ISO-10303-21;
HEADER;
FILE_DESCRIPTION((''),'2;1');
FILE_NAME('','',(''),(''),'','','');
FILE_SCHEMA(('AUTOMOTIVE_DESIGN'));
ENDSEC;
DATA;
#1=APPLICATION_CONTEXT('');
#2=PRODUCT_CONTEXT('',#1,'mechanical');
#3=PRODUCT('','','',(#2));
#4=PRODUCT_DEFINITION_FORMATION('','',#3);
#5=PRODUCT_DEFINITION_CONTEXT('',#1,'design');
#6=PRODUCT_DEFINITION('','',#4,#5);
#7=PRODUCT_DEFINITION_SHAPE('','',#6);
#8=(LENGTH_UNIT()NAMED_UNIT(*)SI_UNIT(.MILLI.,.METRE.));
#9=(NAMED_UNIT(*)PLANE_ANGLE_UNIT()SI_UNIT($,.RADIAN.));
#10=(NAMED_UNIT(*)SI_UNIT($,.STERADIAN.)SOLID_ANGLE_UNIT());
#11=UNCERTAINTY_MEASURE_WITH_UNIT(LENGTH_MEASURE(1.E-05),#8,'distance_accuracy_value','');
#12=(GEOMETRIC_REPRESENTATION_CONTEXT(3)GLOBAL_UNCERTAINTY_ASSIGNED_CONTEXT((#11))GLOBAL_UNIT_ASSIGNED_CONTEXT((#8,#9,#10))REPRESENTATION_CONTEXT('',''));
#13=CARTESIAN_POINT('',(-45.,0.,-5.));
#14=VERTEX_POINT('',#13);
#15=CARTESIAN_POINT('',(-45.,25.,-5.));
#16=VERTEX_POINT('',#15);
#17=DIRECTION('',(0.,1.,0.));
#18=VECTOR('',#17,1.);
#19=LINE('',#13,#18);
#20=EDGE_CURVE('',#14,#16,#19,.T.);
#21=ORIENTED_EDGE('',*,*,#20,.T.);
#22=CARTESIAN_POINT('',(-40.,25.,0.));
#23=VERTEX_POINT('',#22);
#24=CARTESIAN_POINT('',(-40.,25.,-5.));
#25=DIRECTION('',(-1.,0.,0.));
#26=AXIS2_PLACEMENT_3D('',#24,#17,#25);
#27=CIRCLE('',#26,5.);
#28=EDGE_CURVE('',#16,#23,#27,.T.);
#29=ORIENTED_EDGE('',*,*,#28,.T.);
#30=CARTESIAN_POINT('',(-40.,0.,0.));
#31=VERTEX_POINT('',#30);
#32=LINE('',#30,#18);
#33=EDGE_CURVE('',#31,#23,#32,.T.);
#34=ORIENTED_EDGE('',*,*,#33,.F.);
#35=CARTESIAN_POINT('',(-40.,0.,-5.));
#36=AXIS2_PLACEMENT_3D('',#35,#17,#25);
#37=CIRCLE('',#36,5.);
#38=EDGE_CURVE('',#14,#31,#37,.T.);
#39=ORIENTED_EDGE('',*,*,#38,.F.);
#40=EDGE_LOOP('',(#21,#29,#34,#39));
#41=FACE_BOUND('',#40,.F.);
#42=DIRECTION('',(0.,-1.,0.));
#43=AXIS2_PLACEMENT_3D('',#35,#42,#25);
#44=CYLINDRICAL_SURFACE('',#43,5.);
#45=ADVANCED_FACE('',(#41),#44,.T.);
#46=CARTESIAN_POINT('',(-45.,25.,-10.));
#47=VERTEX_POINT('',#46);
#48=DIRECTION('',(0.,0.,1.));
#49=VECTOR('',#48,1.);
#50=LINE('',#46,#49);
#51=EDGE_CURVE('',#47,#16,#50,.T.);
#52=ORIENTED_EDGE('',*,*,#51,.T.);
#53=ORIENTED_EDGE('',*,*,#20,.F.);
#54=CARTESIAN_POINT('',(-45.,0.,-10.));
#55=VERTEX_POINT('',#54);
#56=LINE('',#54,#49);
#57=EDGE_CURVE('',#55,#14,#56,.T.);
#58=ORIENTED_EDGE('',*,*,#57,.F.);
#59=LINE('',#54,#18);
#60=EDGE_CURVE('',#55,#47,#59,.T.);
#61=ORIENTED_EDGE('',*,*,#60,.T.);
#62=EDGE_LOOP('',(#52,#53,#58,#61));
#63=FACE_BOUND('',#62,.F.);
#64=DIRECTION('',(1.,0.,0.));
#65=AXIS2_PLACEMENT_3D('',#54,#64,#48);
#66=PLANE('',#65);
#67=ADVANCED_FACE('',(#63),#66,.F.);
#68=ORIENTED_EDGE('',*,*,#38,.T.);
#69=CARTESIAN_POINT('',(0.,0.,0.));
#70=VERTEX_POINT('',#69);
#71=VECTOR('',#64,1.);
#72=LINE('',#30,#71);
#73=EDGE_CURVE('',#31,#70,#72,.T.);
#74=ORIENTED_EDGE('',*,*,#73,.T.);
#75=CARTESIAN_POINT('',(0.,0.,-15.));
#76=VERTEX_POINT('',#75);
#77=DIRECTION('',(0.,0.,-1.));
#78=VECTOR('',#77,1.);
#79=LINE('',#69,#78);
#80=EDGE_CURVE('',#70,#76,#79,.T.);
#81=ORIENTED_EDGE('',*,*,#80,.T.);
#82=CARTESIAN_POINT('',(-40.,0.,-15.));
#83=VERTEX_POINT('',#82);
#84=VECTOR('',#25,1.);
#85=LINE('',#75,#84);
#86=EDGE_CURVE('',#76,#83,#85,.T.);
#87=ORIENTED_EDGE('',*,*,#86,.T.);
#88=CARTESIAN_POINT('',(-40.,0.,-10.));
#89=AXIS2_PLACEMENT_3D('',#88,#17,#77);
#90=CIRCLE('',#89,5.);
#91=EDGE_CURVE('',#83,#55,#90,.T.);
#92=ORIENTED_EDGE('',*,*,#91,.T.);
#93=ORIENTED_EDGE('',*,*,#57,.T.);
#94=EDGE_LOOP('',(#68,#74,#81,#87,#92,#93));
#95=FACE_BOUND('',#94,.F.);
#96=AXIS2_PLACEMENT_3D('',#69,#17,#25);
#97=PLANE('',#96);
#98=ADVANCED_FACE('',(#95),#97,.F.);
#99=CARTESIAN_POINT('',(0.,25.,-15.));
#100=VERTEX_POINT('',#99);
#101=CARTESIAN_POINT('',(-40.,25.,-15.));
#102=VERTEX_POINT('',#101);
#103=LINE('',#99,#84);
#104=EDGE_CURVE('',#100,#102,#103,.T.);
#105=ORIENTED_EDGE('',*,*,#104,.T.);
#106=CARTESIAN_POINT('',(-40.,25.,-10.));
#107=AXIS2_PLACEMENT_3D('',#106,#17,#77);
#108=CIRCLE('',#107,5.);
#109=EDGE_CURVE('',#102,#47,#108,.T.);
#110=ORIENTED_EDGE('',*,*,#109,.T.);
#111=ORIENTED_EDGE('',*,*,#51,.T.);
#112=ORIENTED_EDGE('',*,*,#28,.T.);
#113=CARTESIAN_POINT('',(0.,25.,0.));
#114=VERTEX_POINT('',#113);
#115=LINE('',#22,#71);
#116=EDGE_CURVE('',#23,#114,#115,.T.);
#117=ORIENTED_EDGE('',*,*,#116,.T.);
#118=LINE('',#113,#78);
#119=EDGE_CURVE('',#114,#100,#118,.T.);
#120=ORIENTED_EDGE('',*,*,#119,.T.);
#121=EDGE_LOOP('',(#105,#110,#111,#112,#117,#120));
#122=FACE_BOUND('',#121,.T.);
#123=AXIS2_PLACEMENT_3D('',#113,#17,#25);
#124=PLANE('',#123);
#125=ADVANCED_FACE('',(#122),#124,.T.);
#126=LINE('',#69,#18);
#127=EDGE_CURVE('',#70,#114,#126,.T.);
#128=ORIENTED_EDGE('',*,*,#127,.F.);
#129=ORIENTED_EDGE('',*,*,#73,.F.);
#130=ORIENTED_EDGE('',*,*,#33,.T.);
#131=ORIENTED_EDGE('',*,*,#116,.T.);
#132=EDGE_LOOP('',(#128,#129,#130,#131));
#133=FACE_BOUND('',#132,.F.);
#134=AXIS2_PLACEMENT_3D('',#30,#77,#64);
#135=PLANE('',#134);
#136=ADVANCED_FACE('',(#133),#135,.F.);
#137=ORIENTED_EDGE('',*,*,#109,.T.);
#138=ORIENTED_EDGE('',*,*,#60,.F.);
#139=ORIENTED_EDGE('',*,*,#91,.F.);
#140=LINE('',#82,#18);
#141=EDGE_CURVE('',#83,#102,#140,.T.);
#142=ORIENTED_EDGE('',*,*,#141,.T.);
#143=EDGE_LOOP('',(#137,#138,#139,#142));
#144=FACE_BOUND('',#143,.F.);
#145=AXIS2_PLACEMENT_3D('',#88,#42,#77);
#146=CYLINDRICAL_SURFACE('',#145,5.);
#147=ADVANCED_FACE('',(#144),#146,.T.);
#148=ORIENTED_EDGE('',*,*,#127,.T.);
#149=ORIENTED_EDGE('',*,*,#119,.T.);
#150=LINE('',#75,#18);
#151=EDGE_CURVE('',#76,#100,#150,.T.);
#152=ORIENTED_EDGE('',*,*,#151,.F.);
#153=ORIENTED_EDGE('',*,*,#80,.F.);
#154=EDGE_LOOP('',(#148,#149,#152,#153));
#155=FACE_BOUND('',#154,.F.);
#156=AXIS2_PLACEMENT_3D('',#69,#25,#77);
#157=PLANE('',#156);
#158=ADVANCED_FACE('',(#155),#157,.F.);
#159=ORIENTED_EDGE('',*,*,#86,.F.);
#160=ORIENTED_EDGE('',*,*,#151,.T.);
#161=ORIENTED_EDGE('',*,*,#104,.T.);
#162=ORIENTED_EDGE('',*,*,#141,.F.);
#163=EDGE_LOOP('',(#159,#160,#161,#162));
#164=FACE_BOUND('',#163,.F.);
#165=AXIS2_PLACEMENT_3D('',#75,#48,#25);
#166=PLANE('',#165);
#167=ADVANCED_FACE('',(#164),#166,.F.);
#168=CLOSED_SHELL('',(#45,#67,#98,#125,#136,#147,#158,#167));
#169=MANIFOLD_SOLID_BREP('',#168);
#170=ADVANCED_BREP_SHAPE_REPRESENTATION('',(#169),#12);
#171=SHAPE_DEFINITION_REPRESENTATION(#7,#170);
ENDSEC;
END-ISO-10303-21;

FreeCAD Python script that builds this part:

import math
import FreeCAD as App
import Part
import Sketcher
from FreeCAD import Vector

doc = App.newDocument("Part")
params = doc.addObject("Spreadsheet::Sheet", "Params")
for row, (alias, value) in enumerate([
    ("sketch1_radius", "5 mm"),
    ("sketch1_height", "15 mm"),
    ("pad1_length", "25 mm"),
], start=1):
    params.set(f"A{row}", alias)
    params.set(f"B{row}", "=" + value)
    params.setAlias(f"B{row}", alias)

body = doc.addObject("PartDesign::Body", "Body")

sketch1 = doc.addObject("Sketcher::SketchObject", "Sketch")
body.addObject(sketch1)
sketch1.AttachmentSupport = (doc.XZ_Plane, [""])
sketch1.MapMode = "FlatFace"
sketch1.addGeometry(Part.ArcOfCircle(Part.Circle(Vector(-40, -5, 0), Vector(0, 0, 1), 5), math.radians(90), math.radians(180)), False)
sketch1.addGeometry(Part.LineSegment(Vector(-40, 0, 0), Vector(0, 0, 0)), False)
sketch1.addGeometry(Part.LineSegment(Vector(0, 0, 0), Vector(0, -15, 0)), False)
sketch1.addGeometry(Part.LineSegment(Vector(0, -15, 0), Vector(-40, -15, 0)), False)
sketch1.addGeometry(Part.ArcOfCircle(Part.Circle(Vector(-40, -10, 0), Vector(0, 0, 1), 5), math.radians(180), math.radians(270)), False)
sketch1.addGeometry(Part.LineSegment(Vector(-45, -10, 0), Vector(-45, -5, 0)), False)
sketch1.addConstraint(Sketcher.Constraint("Tangent", 0, 1, 1, 1))
sketch1.addConstraint(Sketcher.Constraint("Coincident", 1, 2, 2, 1))
sketch1.addConstraint(Sketcher.Constraint("Coincident", 2, 2, 3, 1))
sketch1.addConstraint(Sketcher.Constraint("Tangent", 3, 2, 4, 2))
sketch1.addConstraint(Sketcher.Constraint("Tangent", 4, 1, 5, 1))
sketch1.addConstraint(Sketcher.Constraint("Tangent", 5, 2, 0, 2))
sketch1.addConstraint(Sketcher.Constraint("Horizontal", 1))
sketch1.addConstraint(Sketcher.Constraint("Vertical", 2))
sketch1.addConstraint(Sketcher.Constraint("Horizontal", 3))
sketch1.addConstraint(Sketcher.Constraint("Vertical", 5))
sketch1.addConstraint(Sketcher.Constraint("Coincident", 1, 2, -1, 1))
sketch1.addConstraint(Sketcher.Constraint("Equal", 0, 4))
sketch1.addConstraint(Sketcher.Constraint("Radius", 0, 5.0))
sketch1.addConstraint(Sketcher.Constraint("DistanceY", 2, 2, 2, 1, 15.0))
sketch1.addConstraint(Sketcher.Constraint("DistanceX", 4, 1, -1, 1, 45.0))
sketch1.setExpression("Constraints[12]", "Params.sketch1_radius")
sketch1.setExpression("Constraints[13]", "Params.sketch1_height")
pad1 = doc.addObject("PartDesign::Pad", "Pad")
body.addObject(pad1)
pad1.Profile = sketch1
pad1.setExpression("Length", "Params.pad1_length")
pad1.Reversed = True

doc.recompute()
